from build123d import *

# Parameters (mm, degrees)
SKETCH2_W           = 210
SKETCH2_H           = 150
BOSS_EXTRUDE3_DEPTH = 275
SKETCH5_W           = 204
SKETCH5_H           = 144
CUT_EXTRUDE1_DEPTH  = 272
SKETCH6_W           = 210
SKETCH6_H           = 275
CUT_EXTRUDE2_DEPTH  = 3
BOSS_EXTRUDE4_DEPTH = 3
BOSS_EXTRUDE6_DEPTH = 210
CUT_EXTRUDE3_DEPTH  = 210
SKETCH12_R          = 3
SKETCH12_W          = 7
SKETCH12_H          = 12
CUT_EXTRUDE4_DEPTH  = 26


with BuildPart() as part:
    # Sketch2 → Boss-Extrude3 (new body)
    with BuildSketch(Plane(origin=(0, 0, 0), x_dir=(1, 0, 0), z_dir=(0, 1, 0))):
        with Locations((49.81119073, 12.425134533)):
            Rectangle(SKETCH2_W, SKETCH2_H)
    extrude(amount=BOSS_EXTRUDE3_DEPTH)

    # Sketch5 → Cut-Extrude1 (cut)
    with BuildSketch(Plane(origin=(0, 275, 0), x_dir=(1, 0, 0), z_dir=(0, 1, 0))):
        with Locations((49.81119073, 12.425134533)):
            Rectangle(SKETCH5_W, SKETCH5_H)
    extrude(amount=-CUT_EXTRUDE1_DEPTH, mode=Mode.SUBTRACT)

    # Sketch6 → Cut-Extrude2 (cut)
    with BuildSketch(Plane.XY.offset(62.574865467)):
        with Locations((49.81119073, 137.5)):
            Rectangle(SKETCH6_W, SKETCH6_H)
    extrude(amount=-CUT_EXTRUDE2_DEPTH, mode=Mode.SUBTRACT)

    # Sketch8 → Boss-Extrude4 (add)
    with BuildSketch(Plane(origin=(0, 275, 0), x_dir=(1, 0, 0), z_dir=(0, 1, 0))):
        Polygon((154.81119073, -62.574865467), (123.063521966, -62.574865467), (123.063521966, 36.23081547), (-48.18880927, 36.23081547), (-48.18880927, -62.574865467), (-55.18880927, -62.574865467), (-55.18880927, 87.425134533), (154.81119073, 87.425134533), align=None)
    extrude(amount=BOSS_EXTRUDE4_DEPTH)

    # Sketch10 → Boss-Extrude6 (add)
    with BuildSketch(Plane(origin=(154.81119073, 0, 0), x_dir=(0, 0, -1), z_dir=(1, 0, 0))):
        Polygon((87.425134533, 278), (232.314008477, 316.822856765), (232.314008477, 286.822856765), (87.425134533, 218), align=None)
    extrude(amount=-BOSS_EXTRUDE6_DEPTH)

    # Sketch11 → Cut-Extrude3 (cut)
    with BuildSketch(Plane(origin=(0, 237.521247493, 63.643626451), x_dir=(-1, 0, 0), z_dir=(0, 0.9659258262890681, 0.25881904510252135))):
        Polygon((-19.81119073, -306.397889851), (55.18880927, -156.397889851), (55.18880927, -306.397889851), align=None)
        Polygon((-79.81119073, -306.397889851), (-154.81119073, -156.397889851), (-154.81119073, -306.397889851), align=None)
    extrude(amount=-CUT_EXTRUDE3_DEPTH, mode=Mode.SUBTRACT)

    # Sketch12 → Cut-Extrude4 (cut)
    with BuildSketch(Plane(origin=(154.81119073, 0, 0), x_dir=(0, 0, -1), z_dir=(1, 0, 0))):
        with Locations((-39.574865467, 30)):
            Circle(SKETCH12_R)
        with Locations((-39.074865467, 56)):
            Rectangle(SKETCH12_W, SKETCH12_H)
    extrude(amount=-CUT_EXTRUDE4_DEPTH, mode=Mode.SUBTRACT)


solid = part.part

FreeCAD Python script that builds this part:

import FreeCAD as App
import Part
import Sketcher
Q = App.Units.Quantity


def add_polygon(sketch, points):
    """Adds a closed chain of lines whose ends are joined by coincident constraints."""
    first, n = sketch.GeometryCount, len(points)
    for a, b in zip(points, points[1:] + points[:1]):
        sketch.addGeometry(Part.LineSegment(App.Vector(*a, 0), App.Vector(*b, 0)), False)
    for i in range(n):
        sketch.addConstraint(Sketcher.Constraint("Coincident", first + i, 2, first + (i + 1) % n, 1))

doc = App.newDocument("Part")
params = doc.addObject("Spreadsheet::Sheet", "Params")
for row, (alias, value) in enumerate([
    ("sketch1_width", "210 mm"),
    ("sketch1_height", "150 mm"),
    ("pad1_length", "275 mm"),
    ("sketch2_width", "204 mm"),
    ("sketch2_height", "144 mm"),
    ("pocket1_length", "272 mm"),
    ("sketch3_width", "210 mm"),
    ("sketch3_height", "275 mm"),
    ("pocket2_length", "3 mm"),
    ("sketch4_width", "210 mm"),
    ("sketch4_width2", "7 mm"),
    ("sketch4_height", "150 mm"),
    ("pad2_length", "3 mm"),
    ("sketch5_width", "60 mm"),
    ("sketch5_width2", "30 mm"),
    ("sketch5_length", "150 mm"),
    ("pad3_length", "210 mm"),
    ("sketch6_width", "75 mm"),
    ("sketch6_height", "150 mm"),
    ("pocket3_length", "210 mm"),
    ("sketch7_diameter", "6 mm"),
    ("sketch7_width", "12 mm"),
    ("sketch7_height", "7 mm"),
    ("pocket4_length", "26 mm"),
], start=1):
    params.set(f"A{row}", alias)
    params.set(f"B{row}", "=" + value)
    params.setAlias(f"B{row}", alias)

body = doc.addObject("PartDesign::Body", "Body")

sketch1 = doc.addObject("Sketcher::SketchObject", "Sketch")
body.addObject(sketch1)
sketch1.AttachmentSupport = (doc.XZ_Plane, [""])
sketch1.MapMode = "FlatFace"
add_polygon(sketch1, [(-55, -87), (-55, 63), (155, 63), (155, -87)])
sketch1.addConstraint([
    Sketcher.Constraint("Vertical", 0),
    Sketcher.Constraint("Horizontal", 1),
    Sketcher.Constraint("Vertical", 2),
    Sketcher.Constraint("Horizontal", 3),
    Sketcher.Constraint("DistanceX", 1, 1, 1, 2, Q("210 mm")),
    Sketcher.Constraint("DistanceY", 0, 1, 0, 2, Q("150 mm")),
    Sketcher.Constraint("DistanceX", 0, 2, -1, 1, Q("55.188809 mm")),
    Sketcher.Constraint("DistanceY", -1, 1, 0, 2, Q("62.574865 mm")),
])
sketch1.setExpression("Constraints[8]", "Params.sketch1_width")
sketch1.setExpression("Constraints[9]", "Params.sketch1_height")
pad1 = doc.addObject("PartDesign::Pad", "Pad")
body.addObject(pad1)
pad1.Profile = sketch1
pad1.setExpression("Length", "Params.pad1_length")
pad1.Reversed = True

sketch2 = doc.addObject("Sketcher::SketchObject", "Sketch001")
body.addObject(sketch2)
sketch2.AttachmentSupport = (doc.XZ_Plane, [""])
sketch2.MapMode = "FlatFace"
sketch2.AttachmentOffset = App.Placement(App.Vector(0, 0, -275), App.Rotation())
add_polygon(sketch2, [(-52, -84), (-52, 60), (152, 60), (152, -84)])
sketch2.addConstraint([
    Sketcher.Constraint("Vertical", 0),
    Sketcher.Constraint("Horizontal", 1),
    Sketcher.Constraint("Vertical", 2),
    Sketcher.Constraint("Horizontal", 3),
    Sketcher.Constraint("DistanceX", 1, 1, 1, 2, Q("204 mm")),
    Sketcher.Constraint("DistanceY", 0, 1, 0, 2, Q("144 mm")),
    Sketcher.Constraint("DistanceX", 0, 2, -1, 1, Q("52.188809 mm")),
    Sketcher.Constraint("DistanceY", -1, 1, 0, 2, Q("59.574865 mm")),
])
sketch2.setExpression("Constraints[8]", "Params.sketch2_width")
sketch2.setExpression("Constraints[9]", "Params.sketch2_height")
pocket1 = doc.addObject("PartDesign::Pocket", "Pocket")
body.addObject(pocket1)
pocket1.Profile = sketch2
pocket1.setExpression("Length", "Params.pocket1_length")
pocket1.Reversed = True

sketch3 = doc.addObject("Sketcher::SketchObject", "Sketch002")
body.addObject(sketch3)
sketch3.AttachmentSupport = (doc.XY_Plane, [""])
sketch3.MapMode = "FlatFace"
sketch3.AttachmentOffset = App.Placement(App.Vector(0, 0, 62.574865), App.Rotation())
add_polygon(sketch3, [(-55, 275), (-55, 0), (155, 0), (155, 275)])
sketch3.addConstraint([
    Sketcher.Constraint("Vertical", 0),
    Sketcher.Constraint("Horizontal", 1),
    Sketcher.Constraint("Vertical", 2),
    Sketcher.Constraint("Horizontal", 3),
    Sketcher.Constraint("PointOnObject", 0, 2, -1),
    Sketcher.Constraint("DistanceX", 1, 1, 1, 2, Q("210 mm")),
    Sketcher.Constraint("DistanceY", 0, 2, 0, 1, Q("275 mm")),
    Sketcher.Constraint("DistanceX", 0, 2, -1, 1, Q("55.188809 mm")),
])
sketch3.setExpression("Constraints[9]", "Params.sketch3_width")
sketch3.setExpression("Constraints[10]", "Params.sketch3_height")
pocket2 = doc.addObject("PartDesign::Pocket", "Pocket001")
body.addObject(pocket2)
pocket2.Profile = sketch3
pocket2.setExpression("Length", "Params.pocket2_length")

sketch4 = doc.addObject("Sketcher::SketchObject", "Sketch003")
body.addObject(sketch4)
sketch4.AttachmentSupport = (doc.XZ_Plane, [""])
sketch4.MapMode = "FlatFace"
sketch4.AttachmentOffset = App.Placement(App.Vector(0, 0, -275), App.Rotation())
add_polygon(sketch4, [(123, 63), (155, 63), (155, -87), (-55, -87), (-55, 63), (-48, 63), (-48, -36), (123, -36)])
sketch4.addConstraint([
    Sketcher.Constraint("Horizontal", 0),
    Sketcher.Constraint("Vertical", 1),
    Sketcher.Constraint("Horizontal", 2),
    Sketcher.Constraint("Vertical", 3),
    Sketcher.Constraint("Horizontal", 4),
    Sketcher.Constraint("Vertical", 5),
    Sketcher.Constraint("Horizontal", 6),
    Sketcher.Constraint("Vertical", 7),
    Sketcher.Constraint("Horizontal", 0, 2, 3, 2),
    Sketcher.Constraint("DistanceX", 2, 2, 2, 1, Q("210 mm")),
    Sketcher.Constraint("DistanceX", 4, 1, 4, 2, Q("7 mm")),
    Sketcher.Constraint("DistanceY", 1, 2, 1, 1, Q("150 mm")),
    Sketcher.Constraint("DistanceX", 0, 1, 0, 2, Q("31.747669 mm")),
    Sketcher.Constraint("DistanceY", 5, 2, 5, 1, Q("98.805681 mm")),
    Sketcher.Constraint("DistanceX", -1, 1, 0, 2, Q("154.811191 mm")),
    Sketcher.Constraint("DistanceY", -1, 1, 0, 2, Q("62.574865 mm")),
])
sketch4.setExpression("Constraints[17]", "Params.sketch4_width")
sketch4.setExpression("Constraints[18]", "Params.sketch4_width2")
sketch4.setExpression("Constraints[19]", "Params.sketch4_height")
pad2 = doc.addObject("PartDesign::Pad", "Pad001")
body.addObject(pad2)
pad2.Profile = sketch4
pad2.setExpression("Length", "Params.pad2_length")
pad2.Reversed = True

sketch5 = doc.addObject("Sketcher::SketchObject", "Sketch004")
body.addObject(sketch5)
sketch5.AttachmentSupport = (doc.YZ_Plane, [""])
sketch5.MapMode = "FlatFace"
sketch5.AttachmentOffset = App.Placement(App.Vector(0, 0, 154.811191), App.Rotation())
add_polygon(sketch5, [(317, -232), (278, -87), (218, -87), (287, -232)])
sketch5.addConstraint([
    Sketcher.Constraint("Horizontal", 1),
    Sketcher.Constraint("Horizontal", 3),
    Sketcher.Constraint("DistanceX", 1, 2, 1, 1, Q("60 mm")),
    Sketcher.Constraint("DistanceX", 3, 1, 3, 2, Q("30 mm")),
    Sketcher.Constraint("Angle", 0, Q("105 deg")),
    Sketcher.Constraint("Distance", 0, Q("150 mm")),
    Sketcher.Constraint("DistanceX", -1, 1, 0, 2, Q("278 mm")),
    Sketcher.Constraint("DistanceY", 2, 2, -1, 1, Q("232.314008 mm")),
])
sketch5.setExpression("Constraints[6]", "Params.sketch5_width")
sketch5.setExpression("Constraints[7]", "Params.sketch5_width2")
sketch5.setExpression("Constraints[9]", "Params.sketch5_length")
pad3 = doc.addObject("PartDesign::Pad", "Pad002")
body.addObject(pad3)
pad3.Profile = sketch5
pad3.setExpression("Length", "Params.pad3_length")
pad3.Reversed = True

sketch6 = doc.addObject("Sketcher::SketchObject", "Sketch005")
body.addObject(sketch6)
sketch6.Placement = App.Placement(App.Vector(0, 237.521247, 63.643626), App.Rotation(App.Vector(-1, 0, 0), App.Vector(0, -0.258819045, 0.965925826), App.Vector(0, 0.965925826, 0.258819045), "ZXY"))
add_polygon(sketch6, [(55, -156), (-20, -306), (55, -306)])
add_polygon(sketch6, [(-80, -306), (-155, -156), (-155, -306)])
sketch6.addConstraint([
    Sketcher.Constraint("Horizontal", 1),
    Sketcher.Constraint("Vertical", 2),
    Sketcher.Constraint("Vertical", 4),
    Sketcher.Constraint("Horizontal", 5),
    Sketcher.Constraint("Horizontal", 2, 2, 3, 2),
    Sketcher.Constraint("Horizontal", 1, 2, 4, 2),
    Sketcher.Constraint("Equal", 1, 5),
    Sketcher.Constraint("DistanceX", 1, 1, 1, 2, Q("75 mm")),
    Sketcher.Constraint("DistanceY", 2, 1, 2, 2, Q("150 mm")),
    Sketcher.Constraint("DistanceX", 3, 2, 0, 2, Q("135 mm")),
    Sketcher.Constraint("DistanceX", 0, 2, -1, 1, Q("19.811191 mm")),
    Sketcher.Constraint("DistanceY", 0, 2, -1, 1, Q("306.39789 mm")),
])
sketch6.setExpression("Constraints[13]", "Params.sketch6_width")
sketch6.setExpression("Constraints[14]", "Params.sketch6_height")
pocket3 = doc.addObject("PartDesign::Pocket", "Pocket002")
body.addObject(pocket3)
pocket3.Profile = sketch6
pocket3.setExpression("Length", "Params.pocket3_length")

sketch7 = doc.addObject("Sketcher::SketchObject", "Sketch006")
body.addObject(sketch7)
sketch7.AttachmentSupport = (doc.YZ_Plane, [""])
sketch7.MapMode = "FlatFace"
sketch7.AttachmentOffset = App.Placement(App.Vector(0, 0, 154.811191), App.Rotation())
sketch7.addGeometry(Part.Circle(App.Vector(30, 39.6, 0), App.Vector(0, 0, 1), 3), False)
add_polygon(sketch7, [(62, 42.6), (50, 42.6), (50, 35.6), (62, 35.6)])
sketch7.addConstraint([
    Sketcher.Constraint("Horizontal", 1),
    Sketcher.Constraint("Vertical", 2),
    Sketcher.Constraint("Horizontal", 3),
    Sketcher.Constraint("Vertical", 4),
    Sketcher.Constraint("Diameter", 0, Q("6 mm")),
    Sketcher.Constraint("DistanceX", 1, 2, 1, 1, Q("12 mm")),
    Sketcher.Constraint("DistanceY", 2, 2, 2, 1, Q("7 mm")),
    Sketcher.Constraint("DistanceX", -1, 1, 0, 3, Q("30 mm")),
    Sketcher.Constraint("DistanceX", -1, 1, 1, 2, Q("50 mm")),
    Sketcher.Constraint("DistanceY", 0, 3, 1, 2, Q("3 mm")),
    Sketcher.Constraint("DistanceY", -1, 1, 0, 3, Q("39.574865 mm")),
])
sketch7.setExpression("Constraints[8]", "Params.sketch7_diameter")
sketch7.setExpression("Constraints[9]", "Params.sketch7_width")
sketch7.setExpression("Constraints[10]", "Params.sketch7_height")
pocket4 = doc.addObject("PartDesign::Pocket", "Pocket003")
body.addObject(pocket4)
pocket4.Profile = sketch7
pocket4.setExpression("Length", "Params.pocket4_length")

doc.recompute()
